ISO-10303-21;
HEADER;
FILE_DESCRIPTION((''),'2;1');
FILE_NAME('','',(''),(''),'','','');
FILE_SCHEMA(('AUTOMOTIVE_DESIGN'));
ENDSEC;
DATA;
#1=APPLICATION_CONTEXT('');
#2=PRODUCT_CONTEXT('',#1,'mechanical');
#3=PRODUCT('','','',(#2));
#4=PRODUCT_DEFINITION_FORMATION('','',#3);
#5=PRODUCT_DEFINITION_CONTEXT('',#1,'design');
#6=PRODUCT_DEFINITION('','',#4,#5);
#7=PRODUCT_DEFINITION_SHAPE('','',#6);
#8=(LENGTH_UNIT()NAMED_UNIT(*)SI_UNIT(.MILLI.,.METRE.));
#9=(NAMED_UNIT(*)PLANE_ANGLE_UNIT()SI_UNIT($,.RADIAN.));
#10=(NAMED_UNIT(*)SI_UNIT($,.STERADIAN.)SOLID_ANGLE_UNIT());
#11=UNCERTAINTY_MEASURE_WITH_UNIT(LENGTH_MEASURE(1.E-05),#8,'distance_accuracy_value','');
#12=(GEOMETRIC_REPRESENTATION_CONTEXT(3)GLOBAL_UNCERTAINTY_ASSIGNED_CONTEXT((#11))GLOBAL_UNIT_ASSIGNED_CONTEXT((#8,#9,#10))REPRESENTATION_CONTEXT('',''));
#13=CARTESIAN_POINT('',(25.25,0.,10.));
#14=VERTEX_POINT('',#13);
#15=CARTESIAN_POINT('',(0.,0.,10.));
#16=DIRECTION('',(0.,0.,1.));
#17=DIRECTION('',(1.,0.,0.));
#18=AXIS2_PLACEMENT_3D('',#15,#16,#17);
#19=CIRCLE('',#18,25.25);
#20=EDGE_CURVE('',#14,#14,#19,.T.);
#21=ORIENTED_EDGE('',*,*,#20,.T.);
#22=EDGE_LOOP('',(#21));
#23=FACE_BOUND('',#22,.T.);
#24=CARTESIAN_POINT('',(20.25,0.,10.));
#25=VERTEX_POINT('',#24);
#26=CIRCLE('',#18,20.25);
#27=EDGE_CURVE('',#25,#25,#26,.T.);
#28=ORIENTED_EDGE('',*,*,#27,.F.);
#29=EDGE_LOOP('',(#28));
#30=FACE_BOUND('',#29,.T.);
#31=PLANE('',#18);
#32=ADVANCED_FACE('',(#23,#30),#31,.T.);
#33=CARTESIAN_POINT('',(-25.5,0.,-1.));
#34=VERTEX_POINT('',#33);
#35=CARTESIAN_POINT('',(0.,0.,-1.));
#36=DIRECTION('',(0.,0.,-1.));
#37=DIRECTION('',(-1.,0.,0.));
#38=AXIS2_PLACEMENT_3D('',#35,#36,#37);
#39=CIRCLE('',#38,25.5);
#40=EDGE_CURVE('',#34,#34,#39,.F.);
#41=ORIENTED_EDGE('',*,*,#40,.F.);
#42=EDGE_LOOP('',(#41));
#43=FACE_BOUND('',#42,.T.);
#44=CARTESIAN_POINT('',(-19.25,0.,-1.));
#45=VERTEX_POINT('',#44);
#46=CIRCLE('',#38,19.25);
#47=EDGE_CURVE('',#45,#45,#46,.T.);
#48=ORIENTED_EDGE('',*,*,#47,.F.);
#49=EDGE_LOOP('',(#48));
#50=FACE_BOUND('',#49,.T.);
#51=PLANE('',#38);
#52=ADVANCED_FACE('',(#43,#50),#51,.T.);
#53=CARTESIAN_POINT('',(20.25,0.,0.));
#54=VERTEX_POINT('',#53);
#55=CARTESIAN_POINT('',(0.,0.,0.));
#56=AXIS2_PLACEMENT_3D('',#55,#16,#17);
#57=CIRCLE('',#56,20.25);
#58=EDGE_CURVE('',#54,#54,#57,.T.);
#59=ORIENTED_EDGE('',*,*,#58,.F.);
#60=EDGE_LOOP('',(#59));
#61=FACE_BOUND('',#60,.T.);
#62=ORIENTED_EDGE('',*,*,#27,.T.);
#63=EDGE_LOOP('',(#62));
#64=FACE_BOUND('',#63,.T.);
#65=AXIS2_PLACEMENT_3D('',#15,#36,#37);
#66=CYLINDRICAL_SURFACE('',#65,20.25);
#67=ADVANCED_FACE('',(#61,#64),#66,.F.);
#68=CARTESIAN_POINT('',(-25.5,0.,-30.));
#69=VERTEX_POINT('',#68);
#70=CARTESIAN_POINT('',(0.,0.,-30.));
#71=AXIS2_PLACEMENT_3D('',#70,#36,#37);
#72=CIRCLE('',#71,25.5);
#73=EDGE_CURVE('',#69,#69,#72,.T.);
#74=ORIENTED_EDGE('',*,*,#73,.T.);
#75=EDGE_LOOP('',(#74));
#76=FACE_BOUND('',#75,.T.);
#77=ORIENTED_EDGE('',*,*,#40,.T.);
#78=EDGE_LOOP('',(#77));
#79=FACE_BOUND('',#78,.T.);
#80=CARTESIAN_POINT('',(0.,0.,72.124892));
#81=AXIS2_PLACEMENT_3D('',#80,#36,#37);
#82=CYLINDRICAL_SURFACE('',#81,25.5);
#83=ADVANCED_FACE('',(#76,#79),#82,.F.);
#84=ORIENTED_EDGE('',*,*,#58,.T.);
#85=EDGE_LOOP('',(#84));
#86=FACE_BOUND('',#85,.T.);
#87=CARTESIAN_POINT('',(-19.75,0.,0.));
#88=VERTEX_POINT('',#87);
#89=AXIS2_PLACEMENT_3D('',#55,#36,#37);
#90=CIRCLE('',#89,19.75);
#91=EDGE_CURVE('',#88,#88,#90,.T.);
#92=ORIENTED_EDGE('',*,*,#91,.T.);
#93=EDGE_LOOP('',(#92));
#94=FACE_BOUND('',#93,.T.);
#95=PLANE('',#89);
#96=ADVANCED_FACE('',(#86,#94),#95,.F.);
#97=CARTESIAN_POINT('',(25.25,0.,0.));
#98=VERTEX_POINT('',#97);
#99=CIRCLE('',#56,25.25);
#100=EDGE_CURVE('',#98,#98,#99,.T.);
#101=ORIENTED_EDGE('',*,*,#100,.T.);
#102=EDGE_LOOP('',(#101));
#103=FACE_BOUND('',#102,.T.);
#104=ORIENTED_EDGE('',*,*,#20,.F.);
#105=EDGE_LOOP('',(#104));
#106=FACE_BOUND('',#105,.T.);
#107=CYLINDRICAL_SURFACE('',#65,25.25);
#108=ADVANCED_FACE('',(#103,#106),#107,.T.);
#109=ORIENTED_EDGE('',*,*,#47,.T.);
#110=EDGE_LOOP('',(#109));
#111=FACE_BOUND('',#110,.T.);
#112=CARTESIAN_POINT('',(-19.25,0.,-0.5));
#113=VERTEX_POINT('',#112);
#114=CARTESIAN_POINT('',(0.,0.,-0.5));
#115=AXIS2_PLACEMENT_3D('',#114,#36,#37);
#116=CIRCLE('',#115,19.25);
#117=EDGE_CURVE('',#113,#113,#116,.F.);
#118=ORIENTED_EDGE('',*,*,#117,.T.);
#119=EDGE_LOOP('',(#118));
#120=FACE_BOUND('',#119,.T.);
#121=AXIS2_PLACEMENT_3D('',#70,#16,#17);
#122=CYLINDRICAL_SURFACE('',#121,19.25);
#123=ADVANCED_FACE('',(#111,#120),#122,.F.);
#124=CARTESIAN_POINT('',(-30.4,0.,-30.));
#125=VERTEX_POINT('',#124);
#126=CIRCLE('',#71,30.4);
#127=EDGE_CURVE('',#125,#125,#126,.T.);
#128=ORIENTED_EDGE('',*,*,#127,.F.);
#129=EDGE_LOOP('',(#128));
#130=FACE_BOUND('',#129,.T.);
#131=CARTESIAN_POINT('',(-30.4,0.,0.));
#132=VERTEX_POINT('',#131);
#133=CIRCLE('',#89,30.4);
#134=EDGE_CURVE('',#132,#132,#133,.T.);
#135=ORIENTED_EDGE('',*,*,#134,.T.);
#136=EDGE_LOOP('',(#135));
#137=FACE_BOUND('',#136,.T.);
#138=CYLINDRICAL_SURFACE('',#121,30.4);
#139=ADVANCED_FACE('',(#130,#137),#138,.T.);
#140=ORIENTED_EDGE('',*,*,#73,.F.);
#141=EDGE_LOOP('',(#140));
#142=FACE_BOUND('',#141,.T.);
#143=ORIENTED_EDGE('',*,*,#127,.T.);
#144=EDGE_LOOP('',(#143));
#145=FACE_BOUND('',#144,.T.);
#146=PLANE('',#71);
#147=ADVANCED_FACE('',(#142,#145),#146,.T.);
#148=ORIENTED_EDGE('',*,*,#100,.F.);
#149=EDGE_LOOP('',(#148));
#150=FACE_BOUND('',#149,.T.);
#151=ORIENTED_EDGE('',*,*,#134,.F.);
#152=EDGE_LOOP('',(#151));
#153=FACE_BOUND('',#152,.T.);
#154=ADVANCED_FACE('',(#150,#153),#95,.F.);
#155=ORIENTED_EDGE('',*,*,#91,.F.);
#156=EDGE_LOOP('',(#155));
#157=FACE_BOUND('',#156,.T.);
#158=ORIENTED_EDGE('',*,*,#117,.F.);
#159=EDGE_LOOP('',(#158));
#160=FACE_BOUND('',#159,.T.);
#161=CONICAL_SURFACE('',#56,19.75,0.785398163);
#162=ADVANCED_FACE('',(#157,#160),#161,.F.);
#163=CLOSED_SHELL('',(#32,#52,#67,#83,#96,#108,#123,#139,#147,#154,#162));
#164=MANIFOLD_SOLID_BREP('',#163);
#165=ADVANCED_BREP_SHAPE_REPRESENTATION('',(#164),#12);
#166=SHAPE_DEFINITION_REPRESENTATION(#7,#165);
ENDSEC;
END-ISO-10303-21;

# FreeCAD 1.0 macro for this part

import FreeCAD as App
import Part
import Sketcher
from FreeCAD import Vector
Q = App.Units.Quantity


def edges_at(feature, points):
    """Names of the edges that pass closest to the given points."""
    edges = feature.Shape.Edges
    near = lambda p: min(range(len(edges)), key=lambda i: edges[i].distToShape(Part.Vertex(*p))[0])
    return sorted({f"Edge{near(p) + 1}" for p in points})

doc = App.newDocument("Part")
body = doc.addObject("PartDesign::Body", "Body")

# Sketch on XY plane
sketch1 = body.newObject("Sketcher::SketchObject", "Sketch")
sketch1.AttachmentSupport = (doc.getObject("XY_Plane"), [""])
sketch1.MapMode = "FlatFace"
sketch1.addGeometry(Part.Circle(Vector(0, 0, 0), Vector(0, 0, 1), 25.25), False)
sketch1.addGeometry(Part.Circle(Vector(0, 0, 0), Vector(0, 0, 1), 20.25), False)
sketch1.addConstraint(Sketcher.Constraint("Coincident", 0, 3, -1, 1))
sketch1.addConstraint(Sketcher.Constraint("Coincident", 1, 3, -1, 1))
sketch1.addConstraint(Sketcher.Constraint("Diameter", 0, Q("50.5 mm")))
sketch1.addConstraint(Sketcher.Constraint("Diameter", 1, Q("40.5 mm")))
pad1 = body.newObject("PartDesign::Pad", "Pad")
pad1.Profile = sketch1
pad1.Length = 10

# Sketch on XY plane
sketch2 = body.newObject("Sketcher::SketchObject", "Sketch001")
sketch2.AttachmentSupport = (doc.getObject("XY_Plane"), [""])
sketch2.MapMode = "FlatFace"
sketch2.addGeometry(Part.Circle(Vector(0, 0, 0), Vector(0, 0, 1), 30.4), False)
sketch2.addGeometry(Part.Circle(Vector(0, 0, 0), Vector(0, 0, 1), 19.25), False)
sketch2.addConstraint(Sketcher.Constraint("Coincident", 0, 3, -1, 1))
sketch2.addConstraint(Sketcher.Constraint("Coincident", 1, 3, -1, 1))
sketch2.addConstraint(Sketcher.Constraint("Diameter", 0, Q("60.8 mm")))
sketch2.addConstraint(Sketcher.Constraint("Diameter", 1, Q("38.5 mm")))
pad2 = body.newObject("PartDesign::Pad", "Pad001")
pad2.Profile = sketch2
pad2.Length = 30
pad2.Reversed = True

# Sketch on XY plane
sketch3 = body.newObject("Sketcher::SketchObject", "Sketch002")
sketch3.AttachmentSupport = (doc.getObject("XY_Plane"), [""])
sketch3.MapMode = "FlatFace"
sketch3.AttachmentOffset = App.Placement(Vector(0, 0, -30), App.Rotation())
sketch3.addGeometry(Part.Circle(Vector(0, 0, 0), Vector(0, 0, 1), 25.5), False)
sketch3.addConstraint(Sketcher.Constraint("Coincident", 0, 3, -1, 1))
sketch3.addConstraint(Sketcher.Constraint("Diameter", 0, Q("51 mm")))
pocket1 = body.newObject("PartDesign::Pocket", "Pocket")
pocket1.Profile = sketch3
pocket1.Length = 29
pocket1.Reversed = True
doc.recompute()

chamfer = body.newObject("PartDesign::Chamfer", "Chamfer")
chamfer.Base = (pocket1, edges_at(pocket1, [(19.25, 0, 0)]))
chamfer.Size = 0.5

doc.recompute()
